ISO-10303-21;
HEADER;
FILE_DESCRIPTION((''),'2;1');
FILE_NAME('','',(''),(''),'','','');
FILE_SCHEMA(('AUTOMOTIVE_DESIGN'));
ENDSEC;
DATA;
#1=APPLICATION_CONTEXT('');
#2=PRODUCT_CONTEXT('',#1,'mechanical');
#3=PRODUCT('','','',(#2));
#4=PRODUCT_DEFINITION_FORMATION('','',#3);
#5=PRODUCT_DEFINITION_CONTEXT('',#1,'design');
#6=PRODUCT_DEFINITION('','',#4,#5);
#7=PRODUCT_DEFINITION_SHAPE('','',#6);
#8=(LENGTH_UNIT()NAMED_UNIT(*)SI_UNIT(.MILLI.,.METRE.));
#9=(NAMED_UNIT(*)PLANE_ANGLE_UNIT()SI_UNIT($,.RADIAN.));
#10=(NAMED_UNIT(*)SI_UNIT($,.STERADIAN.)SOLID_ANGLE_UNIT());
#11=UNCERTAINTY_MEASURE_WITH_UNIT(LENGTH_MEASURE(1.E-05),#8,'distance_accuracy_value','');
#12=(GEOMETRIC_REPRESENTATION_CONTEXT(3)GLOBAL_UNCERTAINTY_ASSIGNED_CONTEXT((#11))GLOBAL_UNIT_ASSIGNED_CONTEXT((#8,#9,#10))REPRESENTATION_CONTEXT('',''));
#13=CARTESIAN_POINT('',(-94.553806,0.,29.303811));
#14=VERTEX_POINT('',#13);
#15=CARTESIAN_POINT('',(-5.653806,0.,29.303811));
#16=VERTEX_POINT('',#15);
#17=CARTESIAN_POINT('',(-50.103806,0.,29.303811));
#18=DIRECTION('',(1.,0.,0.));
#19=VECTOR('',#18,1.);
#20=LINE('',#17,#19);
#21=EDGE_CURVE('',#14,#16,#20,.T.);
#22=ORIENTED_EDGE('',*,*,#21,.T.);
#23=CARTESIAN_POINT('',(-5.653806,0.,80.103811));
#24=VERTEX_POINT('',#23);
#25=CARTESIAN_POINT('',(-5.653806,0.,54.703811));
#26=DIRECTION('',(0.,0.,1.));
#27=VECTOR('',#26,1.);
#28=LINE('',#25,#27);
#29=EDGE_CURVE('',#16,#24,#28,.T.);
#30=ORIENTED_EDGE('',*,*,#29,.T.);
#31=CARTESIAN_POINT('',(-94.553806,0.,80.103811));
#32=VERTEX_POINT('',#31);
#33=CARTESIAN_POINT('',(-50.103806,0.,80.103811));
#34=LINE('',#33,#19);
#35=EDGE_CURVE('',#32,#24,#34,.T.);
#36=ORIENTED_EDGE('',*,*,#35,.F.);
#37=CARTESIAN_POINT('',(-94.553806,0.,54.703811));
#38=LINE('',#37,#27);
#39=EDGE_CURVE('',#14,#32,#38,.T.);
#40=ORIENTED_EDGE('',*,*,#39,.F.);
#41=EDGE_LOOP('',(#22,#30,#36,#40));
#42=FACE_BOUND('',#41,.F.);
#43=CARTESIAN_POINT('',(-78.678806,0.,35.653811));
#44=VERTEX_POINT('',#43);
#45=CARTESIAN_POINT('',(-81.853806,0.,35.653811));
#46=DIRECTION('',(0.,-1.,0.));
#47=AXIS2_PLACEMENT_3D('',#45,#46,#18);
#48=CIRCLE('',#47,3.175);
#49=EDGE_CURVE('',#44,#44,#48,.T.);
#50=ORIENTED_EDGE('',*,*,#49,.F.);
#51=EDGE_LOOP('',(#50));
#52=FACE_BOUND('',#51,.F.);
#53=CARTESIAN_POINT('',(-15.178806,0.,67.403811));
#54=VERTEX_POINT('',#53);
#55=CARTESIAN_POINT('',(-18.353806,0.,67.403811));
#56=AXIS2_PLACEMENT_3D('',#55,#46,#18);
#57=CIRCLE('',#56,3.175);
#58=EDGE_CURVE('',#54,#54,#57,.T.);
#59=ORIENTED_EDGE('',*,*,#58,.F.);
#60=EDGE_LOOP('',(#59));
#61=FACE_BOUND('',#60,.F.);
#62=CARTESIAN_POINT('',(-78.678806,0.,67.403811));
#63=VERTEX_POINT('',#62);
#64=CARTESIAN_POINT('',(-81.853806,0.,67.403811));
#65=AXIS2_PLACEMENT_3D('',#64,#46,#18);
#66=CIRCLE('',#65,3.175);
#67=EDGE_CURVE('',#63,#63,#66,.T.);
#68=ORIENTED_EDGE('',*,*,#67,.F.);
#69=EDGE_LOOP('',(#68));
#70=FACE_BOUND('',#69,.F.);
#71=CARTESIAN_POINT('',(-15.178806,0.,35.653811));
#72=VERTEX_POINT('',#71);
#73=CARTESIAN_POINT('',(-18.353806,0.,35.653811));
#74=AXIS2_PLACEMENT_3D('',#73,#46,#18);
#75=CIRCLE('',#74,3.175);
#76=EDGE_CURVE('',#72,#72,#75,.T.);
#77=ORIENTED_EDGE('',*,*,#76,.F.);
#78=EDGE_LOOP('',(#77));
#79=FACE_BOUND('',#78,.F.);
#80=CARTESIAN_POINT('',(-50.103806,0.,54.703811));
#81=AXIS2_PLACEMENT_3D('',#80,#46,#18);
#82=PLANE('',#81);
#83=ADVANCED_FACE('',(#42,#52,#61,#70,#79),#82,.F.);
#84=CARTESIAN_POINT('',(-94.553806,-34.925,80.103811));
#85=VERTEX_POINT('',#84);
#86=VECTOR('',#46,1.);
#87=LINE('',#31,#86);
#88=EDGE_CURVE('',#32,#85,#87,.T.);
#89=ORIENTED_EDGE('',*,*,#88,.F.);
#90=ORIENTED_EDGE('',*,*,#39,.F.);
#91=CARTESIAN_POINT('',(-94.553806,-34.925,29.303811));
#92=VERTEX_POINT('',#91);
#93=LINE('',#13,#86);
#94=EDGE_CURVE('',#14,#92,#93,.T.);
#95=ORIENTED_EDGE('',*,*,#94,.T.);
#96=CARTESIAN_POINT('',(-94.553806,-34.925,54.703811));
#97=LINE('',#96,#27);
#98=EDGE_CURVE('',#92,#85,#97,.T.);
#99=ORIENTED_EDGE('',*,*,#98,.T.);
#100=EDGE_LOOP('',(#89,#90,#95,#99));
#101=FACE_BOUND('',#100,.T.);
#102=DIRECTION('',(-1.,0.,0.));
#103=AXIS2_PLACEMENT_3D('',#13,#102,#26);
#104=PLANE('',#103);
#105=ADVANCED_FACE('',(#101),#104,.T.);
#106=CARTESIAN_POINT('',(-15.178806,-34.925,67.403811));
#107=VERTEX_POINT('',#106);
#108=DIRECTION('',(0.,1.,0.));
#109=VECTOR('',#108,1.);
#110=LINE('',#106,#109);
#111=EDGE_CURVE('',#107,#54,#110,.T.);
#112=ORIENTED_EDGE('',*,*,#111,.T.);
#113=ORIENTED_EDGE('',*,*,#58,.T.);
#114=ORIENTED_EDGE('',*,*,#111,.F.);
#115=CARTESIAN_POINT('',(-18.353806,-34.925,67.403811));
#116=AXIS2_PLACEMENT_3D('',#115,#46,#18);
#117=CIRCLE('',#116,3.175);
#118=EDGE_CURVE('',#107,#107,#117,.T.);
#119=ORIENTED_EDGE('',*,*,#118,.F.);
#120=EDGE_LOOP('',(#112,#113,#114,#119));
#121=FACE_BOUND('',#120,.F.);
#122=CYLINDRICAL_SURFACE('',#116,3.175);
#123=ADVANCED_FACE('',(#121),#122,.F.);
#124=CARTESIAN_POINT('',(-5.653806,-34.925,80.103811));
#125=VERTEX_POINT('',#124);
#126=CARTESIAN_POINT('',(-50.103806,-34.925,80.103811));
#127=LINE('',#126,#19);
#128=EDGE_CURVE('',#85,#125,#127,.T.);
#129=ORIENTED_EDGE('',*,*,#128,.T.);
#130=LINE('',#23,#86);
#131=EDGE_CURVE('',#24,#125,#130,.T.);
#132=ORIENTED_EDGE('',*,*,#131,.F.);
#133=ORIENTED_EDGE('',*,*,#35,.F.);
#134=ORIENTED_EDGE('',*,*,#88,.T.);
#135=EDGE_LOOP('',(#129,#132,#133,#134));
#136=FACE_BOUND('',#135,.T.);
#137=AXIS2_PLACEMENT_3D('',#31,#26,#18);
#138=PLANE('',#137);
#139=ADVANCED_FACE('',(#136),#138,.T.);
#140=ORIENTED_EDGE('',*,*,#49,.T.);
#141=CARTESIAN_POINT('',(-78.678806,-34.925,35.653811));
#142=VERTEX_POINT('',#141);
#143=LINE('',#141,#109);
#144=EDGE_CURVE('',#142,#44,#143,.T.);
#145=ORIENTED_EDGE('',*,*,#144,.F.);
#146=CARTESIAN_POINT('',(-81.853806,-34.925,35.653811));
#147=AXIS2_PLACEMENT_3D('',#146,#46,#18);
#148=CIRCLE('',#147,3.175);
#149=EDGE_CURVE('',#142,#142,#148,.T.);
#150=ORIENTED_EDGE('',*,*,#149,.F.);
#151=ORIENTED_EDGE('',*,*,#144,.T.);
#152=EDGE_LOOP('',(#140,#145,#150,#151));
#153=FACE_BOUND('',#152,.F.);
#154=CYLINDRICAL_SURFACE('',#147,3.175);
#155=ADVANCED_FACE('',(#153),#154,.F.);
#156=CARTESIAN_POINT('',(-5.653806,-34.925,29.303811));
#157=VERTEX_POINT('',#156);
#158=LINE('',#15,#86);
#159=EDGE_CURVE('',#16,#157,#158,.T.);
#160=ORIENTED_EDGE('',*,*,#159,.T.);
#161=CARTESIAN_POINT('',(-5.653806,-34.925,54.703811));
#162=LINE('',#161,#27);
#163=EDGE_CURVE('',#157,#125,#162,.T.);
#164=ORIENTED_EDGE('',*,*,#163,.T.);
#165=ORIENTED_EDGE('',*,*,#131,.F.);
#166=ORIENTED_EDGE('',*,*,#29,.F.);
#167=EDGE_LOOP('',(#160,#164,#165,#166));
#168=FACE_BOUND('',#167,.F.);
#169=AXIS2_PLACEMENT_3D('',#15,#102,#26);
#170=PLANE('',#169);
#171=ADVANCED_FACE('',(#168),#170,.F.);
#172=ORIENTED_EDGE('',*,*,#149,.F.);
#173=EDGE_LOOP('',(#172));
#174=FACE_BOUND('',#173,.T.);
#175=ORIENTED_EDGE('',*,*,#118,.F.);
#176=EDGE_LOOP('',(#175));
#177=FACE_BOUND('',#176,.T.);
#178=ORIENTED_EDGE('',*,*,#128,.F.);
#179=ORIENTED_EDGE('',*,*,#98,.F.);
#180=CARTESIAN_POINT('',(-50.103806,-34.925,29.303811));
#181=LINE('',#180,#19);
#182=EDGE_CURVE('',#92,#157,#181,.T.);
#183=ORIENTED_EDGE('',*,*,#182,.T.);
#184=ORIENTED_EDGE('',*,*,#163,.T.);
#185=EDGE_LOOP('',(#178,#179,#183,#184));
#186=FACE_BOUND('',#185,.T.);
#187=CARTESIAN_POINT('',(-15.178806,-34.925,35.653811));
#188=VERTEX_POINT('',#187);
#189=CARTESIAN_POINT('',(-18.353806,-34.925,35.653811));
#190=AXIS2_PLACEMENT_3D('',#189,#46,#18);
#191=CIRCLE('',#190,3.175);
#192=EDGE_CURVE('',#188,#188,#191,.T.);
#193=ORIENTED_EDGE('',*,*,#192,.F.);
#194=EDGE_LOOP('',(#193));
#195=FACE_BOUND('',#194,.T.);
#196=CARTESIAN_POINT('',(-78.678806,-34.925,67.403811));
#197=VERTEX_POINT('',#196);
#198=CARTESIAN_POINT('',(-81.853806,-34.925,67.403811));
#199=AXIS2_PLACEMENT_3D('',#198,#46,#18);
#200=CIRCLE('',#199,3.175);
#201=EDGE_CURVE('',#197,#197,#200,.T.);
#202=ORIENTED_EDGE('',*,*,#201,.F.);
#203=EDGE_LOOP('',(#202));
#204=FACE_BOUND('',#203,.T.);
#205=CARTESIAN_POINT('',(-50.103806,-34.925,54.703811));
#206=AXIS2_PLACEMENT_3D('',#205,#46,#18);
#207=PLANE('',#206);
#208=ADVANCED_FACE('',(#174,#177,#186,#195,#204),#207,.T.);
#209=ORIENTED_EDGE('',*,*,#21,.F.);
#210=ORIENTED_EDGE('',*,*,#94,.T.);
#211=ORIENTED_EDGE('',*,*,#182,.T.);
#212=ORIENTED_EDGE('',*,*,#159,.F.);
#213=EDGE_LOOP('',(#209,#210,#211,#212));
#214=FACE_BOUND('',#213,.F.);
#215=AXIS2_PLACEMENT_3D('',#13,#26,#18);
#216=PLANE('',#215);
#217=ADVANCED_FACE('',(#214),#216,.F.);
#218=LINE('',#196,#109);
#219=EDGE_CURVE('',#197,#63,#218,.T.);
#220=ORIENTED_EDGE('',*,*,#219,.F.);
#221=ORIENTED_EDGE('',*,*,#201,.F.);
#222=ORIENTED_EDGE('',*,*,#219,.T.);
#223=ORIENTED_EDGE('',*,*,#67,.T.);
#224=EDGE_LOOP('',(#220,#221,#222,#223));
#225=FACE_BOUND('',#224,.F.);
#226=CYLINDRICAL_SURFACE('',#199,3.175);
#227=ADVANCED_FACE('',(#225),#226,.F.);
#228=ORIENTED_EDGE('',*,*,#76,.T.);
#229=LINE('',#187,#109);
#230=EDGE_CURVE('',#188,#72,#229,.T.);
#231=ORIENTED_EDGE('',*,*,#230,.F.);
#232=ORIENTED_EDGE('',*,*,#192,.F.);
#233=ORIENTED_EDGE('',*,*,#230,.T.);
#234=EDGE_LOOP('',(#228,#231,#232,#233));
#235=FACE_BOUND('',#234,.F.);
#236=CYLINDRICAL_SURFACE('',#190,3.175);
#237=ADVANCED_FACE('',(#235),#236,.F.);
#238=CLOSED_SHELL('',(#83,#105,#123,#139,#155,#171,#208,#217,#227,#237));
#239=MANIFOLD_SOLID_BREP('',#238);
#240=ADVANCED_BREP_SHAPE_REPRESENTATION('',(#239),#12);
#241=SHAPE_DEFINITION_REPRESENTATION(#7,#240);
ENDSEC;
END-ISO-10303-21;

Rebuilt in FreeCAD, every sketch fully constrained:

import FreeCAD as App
import Part
import Sketcher
Q = App.Units.Quantity


def add_polygon(sketch, points):
    """Adds a closed chain of lines whose ends are joined by coincident constraints."""
    first, n = sketch.GeometryCount, len(points)
    for a, b in zip(points, points[1:] + points[:1]):
        sketch.addGeometry(Part.LineSegment(App.Vector(*a, 0), App.Vector(*b, 0)), False)
    for i in range(n):
        sketch.addConstraint(Sketcher.Constraint("Coincident", first + i, 2, first + (i + 1) % n, 1))

doc = App.newDocument("Part")
params = doc.addObject("Spreadsheet::Sheet", "Params")
for row, (alias, value) in enumerate([
    ("sketch1_height", "2 in"),
    ("sketch1_width", "3.5 in"),
    ("pad1_length", "1.375 in"),
    ("sketch2_diameter", "0.25 in"),
    ("pocket1_length", "1.375 in"),
], start=1):
    params.set(f"A{row}", alias)
    params.set(f"B{row}", "=" + value)
    params.setAlias(f"B{row}", alias)

body = doc.addObject("PartDesign::Body", "Body")

sketch1 = body.newObject("Sketcher::SketchObject", "Sketch")
sketch1.AttachmentSupport = (doc.getObject("XZ_Plane"), [""])
sketch1.MapMode = "FlatFace"
add_polygon(sketch1, [(-94.553806, 80.103811), (-94.553806, 29.303811), (-5.653806, 29.303811), (-5.653806, 80.103811)])
sketch1.addConstraint(Sketcher.Constraint("Vertical", 0))
sketch1.addConstraint(Sketcher.Constraint("Horizontal", 1))
sketch1.addConstraint(Sketcher.Constraint("Vertical", 2))
sketch1.addConstraint(Sketcher.Constraint("Horizontal", 3))
sketch1.addConstraint(Sketcher.Constraint("DistanceY", 0, 2, 0, 1, Q("2 in")))
sketch1.addConstraint(Sketcher.Constraint("DistanceX", 1, 1, 1, 2, Q("3.5 in")))
sketch1.addConstraint(Sketcher.Constraint("DistanceY", -1, 1, 0, 2, 29.303811))
sketch1.addConstraint(Sketcher.Constraint("DistanceX", 0, 2, -1, 1, 94.553806))
sketch1.setExpression("Constraints[8]", "Params.sketch1_height")
sketch1.setExpression("Constraints[9]", "Params.sketch1_width")
pad1 = body.newObject("PartDesign::Pad", "Pad")
pad1.Profile = sketch1
pad1.setExpression("Length", "Params.pad1_length")

sketch2 = body.newObject("Sketcher::SketchObject", "Sketch001")
sketch2.AttachmentSupport = (doc.getObject("XZ_Plane"), [""])
sketch2.MapMode = "FlatFace"
sketch2.AttachmentOffset = App.Placement(App.Vector(0, 0, 1.375 * 25.4), App.Rotation())
sketch2.addGeometry(Part.Circle(App.Vector(-81.853806, 67.403811, 0), App.Vector(0, 0, 1), 3.175), False)
sketch2.addGeometry(Part.Circle(App.Vector(-81.853806, 35.653811, 0), App.Vector(0, 0, 1), 3.175), False)
sketch2.addGeometry(Part.Circle(App.Vector(-18.353806, 67.403811, 0), App.Vector(0, 0, 1), 3.175), False)
sketch2.addGeometry(Part.Circle(App.Vector(-18.353806, 35.653811, 0), App.Vector(0, 0, 1), 3.175), False)
sketch2.addConstraint(Sketcher.Constraint("Equal", 0, 1))
sketch2.addConstraint(Sketcher.Constraint("Equal", 1, 2))
sketch2.addConstraint(Sketcher.Constraint("Equal", 2, 3))
sketch2.addConstraint(Sketcher.Constraint("Horizontal", 0, 3, 2, 3))
sketch2.addConstraint(Sketcher.Constraint("Horizontal", 1, 3, 3, 3))
sketch2.addConstraint(Sketcher.Constraint("Vertical", 0, 3, 1, 3))
sketch2.addConstraint(Sketcher.Constraint("Vertical", 2, 3, 3, 3))
sketch2.addConstraint(Sketcher.Constraint("Diameter", 0, Q("0.25 in")))
sketch2.addConstraint(Sketcher.Constraint("DistanceX", 0, 3, 2, 3, Q("2.5 in")))
sketch2.addConstraint(Sketcher.Constraint("DistanceY", 1, 3, 0, 3, Q("1.25 in")))
sketch2.addConstraint(Sketcher.Constraint("DistanceY", -1, 1, 0, 3, 67.403811))
sketch2.addConstraint(Sketcher.Constraint("DistanceX", 0, 3, -1, 1, 81.853806))
sketch2.setExpression("Constraints[7]", "Params.sketch2_diameter")
pocket1 = body.newObject("PartDesign::Pocket", "Pocket")
pocket1.Profile = sketch2
pocket1.setExpression("Length", "Params.pocket1_length")

doc.recompute()
